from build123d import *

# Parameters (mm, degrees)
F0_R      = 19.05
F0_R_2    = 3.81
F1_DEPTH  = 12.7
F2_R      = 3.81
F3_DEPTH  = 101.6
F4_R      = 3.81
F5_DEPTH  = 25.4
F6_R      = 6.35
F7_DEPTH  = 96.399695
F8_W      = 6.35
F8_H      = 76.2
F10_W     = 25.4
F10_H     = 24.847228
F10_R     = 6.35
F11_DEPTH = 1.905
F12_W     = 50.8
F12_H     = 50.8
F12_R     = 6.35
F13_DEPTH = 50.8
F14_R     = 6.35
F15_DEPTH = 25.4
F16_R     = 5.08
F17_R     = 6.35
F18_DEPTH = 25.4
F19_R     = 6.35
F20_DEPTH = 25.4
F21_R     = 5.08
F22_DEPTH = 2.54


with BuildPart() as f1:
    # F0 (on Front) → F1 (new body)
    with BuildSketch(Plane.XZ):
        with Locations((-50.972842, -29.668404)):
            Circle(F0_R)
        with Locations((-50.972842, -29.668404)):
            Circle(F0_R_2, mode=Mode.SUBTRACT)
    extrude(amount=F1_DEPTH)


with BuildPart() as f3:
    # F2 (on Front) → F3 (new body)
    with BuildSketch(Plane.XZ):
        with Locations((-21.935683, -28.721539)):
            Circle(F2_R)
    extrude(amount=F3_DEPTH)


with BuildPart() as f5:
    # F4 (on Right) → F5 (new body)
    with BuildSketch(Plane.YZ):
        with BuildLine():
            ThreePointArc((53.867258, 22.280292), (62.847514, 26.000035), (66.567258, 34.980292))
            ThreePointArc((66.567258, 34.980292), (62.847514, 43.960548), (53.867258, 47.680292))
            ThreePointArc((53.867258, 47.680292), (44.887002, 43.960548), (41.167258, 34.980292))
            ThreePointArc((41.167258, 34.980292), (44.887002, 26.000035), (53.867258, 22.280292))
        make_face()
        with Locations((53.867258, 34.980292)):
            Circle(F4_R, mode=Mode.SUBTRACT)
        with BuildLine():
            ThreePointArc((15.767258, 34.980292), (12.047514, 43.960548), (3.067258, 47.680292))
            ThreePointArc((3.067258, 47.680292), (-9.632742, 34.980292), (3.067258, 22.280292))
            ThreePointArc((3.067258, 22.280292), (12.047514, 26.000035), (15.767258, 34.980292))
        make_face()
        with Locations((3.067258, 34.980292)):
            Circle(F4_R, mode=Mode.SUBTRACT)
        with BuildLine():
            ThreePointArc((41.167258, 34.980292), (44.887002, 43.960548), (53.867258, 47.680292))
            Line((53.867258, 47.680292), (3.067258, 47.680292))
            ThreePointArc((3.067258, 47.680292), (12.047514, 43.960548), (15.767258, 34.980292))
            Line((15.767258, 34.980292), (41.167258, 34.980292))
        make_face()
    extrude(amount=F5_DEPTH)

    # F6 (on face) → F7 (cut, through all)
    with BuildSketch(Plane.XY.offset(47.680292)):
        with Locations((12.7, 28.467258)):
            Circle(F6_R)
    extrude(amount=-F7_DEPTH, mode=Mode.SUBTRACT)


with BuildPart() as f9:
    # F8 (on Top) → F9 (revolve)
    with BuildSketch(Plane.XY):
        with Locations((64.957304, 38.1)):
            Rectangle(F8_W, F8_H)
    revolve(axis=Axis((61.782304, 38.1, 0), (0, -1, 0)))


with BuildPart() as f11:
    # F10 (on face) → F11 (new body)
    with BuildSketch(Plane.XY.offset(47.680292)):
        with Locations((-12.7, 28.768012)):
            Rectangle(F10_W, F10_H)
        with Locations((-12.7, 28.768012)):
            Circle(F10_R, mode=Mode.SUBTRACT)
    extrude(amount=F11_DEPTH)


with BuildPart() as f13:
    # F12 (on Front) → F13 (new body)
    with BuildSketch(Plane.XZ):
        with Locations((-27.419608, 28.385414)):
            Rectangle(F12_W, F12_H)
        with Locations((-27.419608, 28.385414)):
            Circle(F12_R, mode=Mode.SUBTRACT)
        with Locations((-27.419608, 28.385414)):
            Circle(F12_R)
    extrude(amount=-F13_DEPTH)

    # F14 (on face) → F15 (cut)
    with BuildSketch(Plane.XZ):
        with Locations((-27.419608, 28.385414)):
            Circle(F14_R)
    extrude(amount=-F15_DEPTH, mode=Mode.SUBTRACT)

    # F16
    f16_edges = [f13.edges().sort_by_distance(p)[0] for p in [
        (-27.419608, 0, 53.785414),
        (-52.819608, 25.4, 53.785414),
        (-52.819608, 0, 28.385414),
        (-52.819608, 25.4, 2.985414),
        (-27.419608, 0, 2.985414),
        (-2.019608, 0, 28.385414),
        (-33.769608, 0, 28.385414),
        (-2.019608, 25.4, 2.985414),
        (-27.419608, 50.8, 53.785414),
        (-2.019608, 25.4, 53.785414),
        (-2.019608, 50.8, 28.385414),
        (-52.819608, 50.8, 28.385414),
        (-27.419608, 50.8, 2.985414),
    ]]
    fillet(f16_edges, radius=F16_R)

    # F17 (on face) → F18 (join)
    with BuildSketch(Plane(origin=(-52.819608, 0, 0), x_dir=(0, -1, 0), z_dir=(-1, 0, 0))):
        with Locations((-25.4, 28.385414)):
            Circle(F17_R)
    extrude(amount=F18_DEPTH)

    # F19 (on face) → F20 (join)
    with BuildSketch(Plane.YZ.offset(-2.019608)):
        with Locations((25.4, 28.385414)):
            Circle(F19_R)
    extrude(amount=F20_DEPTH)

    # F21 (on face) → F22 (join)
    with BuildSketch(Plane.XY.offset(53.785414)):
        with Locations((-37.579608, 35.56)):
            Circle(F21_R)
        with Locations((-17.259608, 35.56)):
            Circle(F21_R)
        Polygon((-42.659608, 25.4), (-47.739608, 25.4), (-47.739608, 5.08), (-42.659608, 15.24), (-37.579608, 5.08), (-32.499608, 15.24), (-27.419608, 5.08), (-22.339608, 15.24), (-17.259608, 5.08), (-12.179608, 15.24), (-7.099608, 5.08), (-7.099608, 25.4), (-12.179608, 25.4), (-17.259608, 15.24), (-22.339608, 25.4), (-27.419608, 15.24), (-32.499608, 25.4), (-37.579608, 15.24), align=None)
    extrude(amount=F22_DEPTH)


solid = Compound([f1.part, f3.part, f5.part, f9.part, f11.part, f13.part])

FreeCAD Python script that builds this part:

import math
import FreeCAD as App
import Part
import Sketcher

V = App.Vector
Q = App.Units.Quantity


def edges_at(feature, points):
    """Names of the edges that pass closest to the given points."""
    edges = feature.Shape.Edges
    near = lambda p: min(range(len(edges)), key=lambda i: edges[i].distToShape(Part.Vertex(*p))[0])
    return sorted({f"Edge{near(p) + 1}" for p in points})


def add_polygon(sketch, points):
    """Adds a closed chain of lines whose ends are joined by coincident constraints."""
    first, n = sketch.GeometryCount, len(points)
    for a, b in zip(points, points[1:] + points[:1]):
        sketch.addGeometry(Part.LineSegment(App.Vector(*a, 0), App.Vector(*b, 0)), False)
    for i in range(n):
        sketch.addConstraint(Sketcher.Constraint("Coincident", first + i, 2, first + (i + 1) % n, 1))

doc = App.newDocument("Part")
body = doc.addObject("PartDesign::Body", "Body")

# Sketch on XZ plane
sketch1 = body.newObject("Sketcher::SketchObject", "Sketch")
sketch1.AttachmentSupport = (doc.getObject("XZ_Plane"), [""])
sketch1.MapMode = "FlatFace"
sketch1.addGeometry([
    Part.Circle(V(-51, -29.7, 0), V(0, 0, 1), 19.1),
    Part.Circle(V(-51, -29.7, 0), V(0, 0, 1), 3.8),
], False)
sketch1.addConstraint([
    Sketcher.Constraint("Coincident", 1, 3, 0, 3),
    Sketcher.Constraint("Diameter", 0, Q("1.5 in")),
    Sketcher.Constraint("Diameter", 1, Q("0.3 in")),
    Sketcher.Constraint("DistanceX", 0, 3, -1, 1, Q("50.972842 mm")),
    Sketcher.Constraint("DistanceY", 0, 3, -1, 1, Q("29.668404 mm")),
])
pad1 = body.newObject("PartDesign::Pad", "Pad")
pad1.Profile = sketch1
pad1.Length = Q("0.5 in")
body2 = doc.addObject("PartDesign::Body", "Body001")

# Sketch on XZ plane
sketch2 = body2.newObject("Sketcher::SketchObject", "Sketch001")
sketch2.AttachmentSupport = (doc.getObject("XZ_Plane001"), [""])
sketch2.MapMode = "FlatFace"
sketch2.addGeometry(Part.Circle(V(-21.9, -28.7, 0), V(0, 0, 1), 3.8), False)
sketch2.addConstraint([
    Sketcher.Constraint("Diameter", 0, Q("0.3 in")),
    Sketcher.Constraint("DistanceY", 0, 3, -1, 1, Q("28.721539 mm")),
    Sketcher.Constraint("DistanceX", 0, 3, -1, 1, Q("21.935683 mm")),
])
pad2 = body2.newObject("PartDesign::Pad", "Pad001")
pad2.Profile = sketch2
pad2.Length = Q("4 in")
body3 = doc.addObject("PartDesign::Body", "Body002")

# Sketch on YZ plane
sketch3 = body3.newObject("Sketcher::SketchObject", "Sketch002")
sketch3.AttachmentSupport = (doc.getObject("YZ_Plane002"), [""])
sketch3.MapMode = "FlatFace"
sketch3.addGeometry([
    Part.ArcOfCircle(Part.Circle(V(53.9, 35, 0), V(0, 0, 1), 12.7), math.radians(-90), math.radians(0)),  # 0
    Part.ArcOfCircle(Part.Circle(V(53.9, 35, 0), V(0, 0, 1), 12.7), math.radians(0), math.radians(90)),  # 1
    Part.LineSegment(V(53.9, 47.7, 0), V(3.1, 47.7, 0)),  # 2
    Part.ArcOfCircle(Part.Circle(V(3.1, 35, 0), V(0, 0, 1), 12.7), math.radians(90), math.radians(270)),  # 3
    Part.ArcOfCircle(Part.Circle(V(3.1, 35, 0), V(0, 0, 1), 12.7), math.radians(-90), math.radians(0)),  # 4
    Part.LineSegment(V(15.8, 35, 0), V(41.2, 35, 0)),  # 5
    Part.ArcOfCircle(Part.Circle(V(53.9, 35, 0), V(0, 0, 1), 12.7), math.radians(180), math.radians(270)),  # 6
    Part.Circle(V(53.9, 35, 0), V(0, 0, 1), 3.8),  # 7
    Part.Circle(V(3.1, 35, 0), V(0, 0, 1), 3.8),  # 8
], False)
sketch3.addConstraint([
    Sketcher.Constraint("Tangent", 0, 2, 1, 1),
    Sketcher.Constraint("Tangent", 1, 2, 2, 1),
    Sketcher.Constraint("Tangent", 2, 2, 3, 1),
    Sketcher.Constraint("Tangent", 3, 2, 4, 1),
    Sketcher.Constraint("Coincident", 4, 2, 5, 1),
    Sketcher.Constraint("Coincident", 5, 2, 6, 1),
    Sketcher.Constraint("Tangent", 6, 2, 0, 1),
    Sketcher.Constraint("Horizontal", 2),
    Sketcher.Constraint("Horizontal", 5),
    Sketcher.Constraint("Coincident", 7, 3, 0, 3),
    Sketcher.Constraint("Coincident", 8, 3, 3, 3),
    Sketcher.Constraint("Equal", 0, 1),
    Sketcher.Constraint("Equal", 1, 3),
    Sketcher.Constraint("Equal", 3, 4),
    Sketcher.Constraint("Equal", 4, 6),
    Sketcher.Constraint("Equal", 7, 8),
    Sketcher.Constraint("Horizontal", 8, 3, 0, 2),
    Sketcher.Constraint("Horizontal", 0, 2, 4, 2),
    Sketcher.Constraint("Vertical", 2, 2, 3, 2),
    Sketcher.Constraint("Vertical", 1, 2, 6, 2),
    Sketcher.Constraint("Diameter", 7, Q("0.3 in")),
    Sketcher.Constraint("Radius", 0, Q("0.4999999 in")),
    Sketcher.Constraint("DistanceX", 2, 2, 2, 1, Q("2 in")),
    Sketcher.Constraint("DistanceX", -1, 1, 0, 3, Q("53.867259 mm")),
    Sketcher.Constraint("DistanceY", -1, 1, 0, 3, Q("34.980291 mm")),
])
pad3 = body3.newObject("PartDesign::Pad", "Pad002")
pad3.Profile = sketch3
pad3.Length = Q("1 in")

# Sketch on XY plane
sketch4 = body3.newObject("Sketcher::SketchObject", "Sketch003")
sketch4.AttachmentSupport = (doc.getObject("XY_Plane002"), [""])
sketch4.MapMode = "FlatFace"
sketch4.AttachmentOffset = App.Placement(V(0, 0, 47.680292), App.Rotation())
sketch4.addGeometry(Part.Circle(V(13, 28, 0), V(0, 0, 1), 6), False)
sketch4.addConstraint([
    Sketcher.Constraint("Diameter", 0, Q("0.5 in")),
    Sketcher.Constraint("DistanceX", -1, 1, 0, 3, Q("0.5 in")),
    Sketcher.Constraint("DistanceY", -1, 1, 0, 3, Q("28.467258 mm")),
])
pocket1 = body3.newObject("PartDesign::Pocket", "Pocket")
pocket1.Profile = sketch4
pocket1.Type = "ThroughAll"
body4 = doc.addObject("PartDesign::Body", "Body003")

# Sketch on XY plane
sketch5 = body4.newObject("Sketcher::SketchObject", "Sketch004")
sketch5.AttachmentSupport = (doc.getObject("XY_Plane003"), [""])
sketch5.MapMode = "FlatFace"
add_polygon(sketch5, [(62, 76), (62, 0), (68, 0), (68, 76)])  # lines 0-3
sketch5.addGeometry(Part.LineSegment(V(62, 76, 0), V(62, 0, 0)), True)  # axis
sketch5.addConstraint([
    Sketcher.Constraint("Vertical", 0),
    Sketcher.Constraint("Horizontal", 1),
    Sketcher.Constraint("Vertical", 2),
    Sketcher.Constraint("Horizontal", 3),
    Sketcher.Constraint("Vertical", 4),
    Sketcher.Constraint("Coincident", 4, 1, 3, 2),
    Sketcher.Constraint("PointOnObject", 0, 2, -1),
    Sketcher.Constraint("PointOnObject", 4, 2, -1),
    Sketcher.Constraint("DistanceY", 0, 2, 0, 1, Q("3 in")),
    Sketcher.Constraint("DistanceX", 1, 1, 1, 2, Q("0.25 in")),
    Sketcher.Constraint("DistanceX", -1, 1, 0, 2, Q("61.782304 mm")),
])
revolution = body4.newObject("PartDesign::Revolution", "Revolution")
revolution.Profile = sketch5
revolution.ReferenceAxis = (sketch5, ["Axis0"])
revolution.Angle = 360
body5 = doc.addObject("PartDesign::Body", "Body004")

# Sketch on XY plane
sketch6 = body5.newObject("Sketcher::SketchObject", "Sketch005")
sketch6.AttachmentSupport = (doc.getObject("XY_Plane004"), [""])
sketch6.MapMode = "FlatFace"
sketch6.AttachmentOffset = App.Placement(V(0, 0, 47.680292), App.Rotation())
add_polygon(sketch6, [(-25, 41), (-25, 16), (0, 16), (0, 41)])  # lines 0-3
sketch6.addGeometry(Part.Circle(V(-13, 29, 0), V(0, 0, 1), 6), False)  # 4
sketch6.addConstraint([
    Sketcher.Constraint("Vertical", 0),
    Sketcher.Constraint("Horizontal", 1),
    Sketcher.Constraint("Vertical", 2),
    Sketcher.Constraint("Horizontal", 3),
    Sketcher.Constraint("PointOnObject", 1, 2, -2),
    Sketcher.Constraint("Diameter", 4, Q("0.5 in")),
    Sketcher.Constraint("DistanceX", 1, 1, 1, 2, Q("1 in")),
    Sketcher.Constraint("DistanceX", 4, 3, -1, 1, Q("0.5 in")),
    Sketcher.Constraint("DistanceY", -1, 1, 0, 2, Q("16.344398 mm")),
    Sketcher.Constraint("DistanceY", 0, 2, 0, 1, Q("24.847228 mm")),
    Sketcher.Constraint("DistanceY", -1, 1, 4, 3, Q("28.768012 mm")),
])
pad4 = body5.newObject("PartDesign::Pad", "Pad003")
pad4.Profile = sketch6
pad4.Length = Q("0.075 in")
body6 = doc.addObject("PartDesign::Body", "Body005")

# Sketch on XZ plane
sketch7 = body6.newObject("Sketcher::SketchObject", "Sketch006")
sketch7.AttachmentSupport = (doc.getObject("XZ_Plane005"), [""])
sketch7.MapMode = "FlatFace"
add_polygon(sketch7, [(-53, 54), (-53, 3), (-2, 3), (-2, 54)])  # lines 0-3
sketch7.addConstraint([
    Sketcher.Constraint("Vertical", 0),
    Sketcher.Constraint("Horizontal", 1),
    Sketcher.Constraint("Vertical", 2),
    Sketcher.Constraint("Horizontal", 3),
    Sketcher.Constraint("Equal", 3, 0),
    Sketcher.Constraint("DistanceX", 1, 1, 1, 2, Q("2 in")),
    Sketcher.Constraint("DistanceX", 0, 2, -1, 1, Q("52.819608 mm")),
    Sketcher.Constraint("DistanceY", -1, 1, 0, 2, Q("2.985414 mm")),
])
pad5 = body6.newObject("PartDesign::Pad", "Pad004")
pad5.Profile = sketch7
pad5.Length = Q("2 in")
pad5.Reversed = True

# Sketch on XZ plane
sketch8 = body6.newObject("Sketcher::SketchObject", "Sketch007")
sketch8.AttachmentSupport = (doc.getObject("XZ_Plane005"), [""])
sketch8.MapMode = "FlatFace"
sketch8.addGeometry(Part.Circle(V(-27, 28, 0), V(0, 0, 1), 6), False)
sketch8.addConstraint([
    Sketcher.Constraint("Diameter", 0, Q("0.5 in")),
    Sketcher.Constraint("DistanceX", 0, 3, -1, 1, Q("27.419608 mm")),
    Sketcher.Constraint("DistanceY", -1, 1, 0, 3, Q("28.385414 mm")),
])
pocket2 = body6.newObject("PartDesign::Pocket", "Pocket001")
pocket2.Profile = sketch8
pocket2.Length = Q("1 in")
doc.recompute()

fillet = body6.newObject("PartDesign::Fillet", "Fillet")
fillet.Base = (pocket2, edges_at(pocket2, [
    (-27.42, 0, 53.785),
    (-52.82, 25.4, 53.785),
    (-52.82, 0, 28.385),
    (-52.82, 25.4, 2.985),
    (-27.42, 0, 2.985),
    (-2.02, 0, 28.385),
    (-33.77, 0, 28.385),
    (-2.02, 25.4, 2.985),
    (-27.42, 50.8, 53.785),
    (-2.02, 25.4, 53.785),
    (-2.02, 50.8, 28.385),
    (-52.82, 50.8, 28.385),
    (-27.42, 50.8, 2.985),
]))
fillet.Radius = Q("0.2 in")

# Sketch on YZ plane
sketch9 = body6.newObject("Sketcher::SketchObject", "Sketch008")
sketch9.AttachmentSupport = (doc.getObject("YZ_Plane005"), [""])
sketch9.MapMode = "FlatFace"
sketch9.AttachmentOffset = App.Placement(V(0, 0, -52.819608), App.Rotation())
sketch9.addGeometry(Part.Circle(V(25, 28, 0), V(0, 0, 1), 6), False)
sketch9.addConstraint([
    Sketcher.Constraint("Diameter", 0, Q("0.5 in")),
    Sketcher.Constraint("DistanceX", -1, 1, 0, 3, Q("1 in")),
    Sketcher.Constraint("DistanceY", -1, 1, 0, 3, Q("28.385414 mm")),
])
pad6 = body6.newObject("PartDesign::Pad", "Pad005")
pad6.Profile = sketch9
pad6.Length = Q("1 in")
pad6.Reversed = True

# Sketch on YZ plane
sketch10 = body6.newObject("Sketcher::SketchObject", "Sketch009")
sketch10.AttachmentSupport = (doc.getObject("YZ_Plane005"), [""])
sketch10.MapMode = "FlatFace"
sketch10.AttachmentOffset = App.Placement(V(0, 0, -2.019608), App.Rotation())
sketch10.addGeometry(Part.Circle(V(25, 28, 0), V(0, 0, 1), 6), False)
sketch10.addConstraint([
    Sketcher.Constraint("Diameter", 0, Q("0.5 in")),
    Sketcher.Constraint("DistanceX", -1, 1, 0, 3, Q("1 in")),
    Sketcher.Constraint("DistanceY", -1, 1, 0, 3, Q("28.385414 mm")),
])
pad7 = body6.newObject("PartDesign::Pad", "Pad006")
pad7.Profile = sketch10
pad7.Length = Q("1 in")

# Sketch on XY plane
sketch11 = body6.newObject("Sketcher::SketchObject", "Sketch010")
sketch11.AttachmentSupport = (doc.getObject("XY_Plane005"), [""])
sketch11.MapMode = "FlatFace"
sketch11.AttachmentOffset = App.Placement(V(0, 0, 53.785414), App.Rotation())
sketch11.addGeometry(Part.Circle(V(-38, 36, 0), V(0, 0, 1), 5), False)  # 0
sketch11.addGeometry(Part.Circle(V(-17, 36, 0), V(0, 0, 1), 5), False)  # 1
add_polygon(sketch11, [(-43, 25), (-48, 25), (-48, 5), (-43, 15), (-38, 5), (-32, 15), (-27, 5), (-22, 15), (-17, 5), (-12, 15), (-7, 5), (-7, 25), (-12, 25), (-17, 15), (-22, 25), (-27, 15), (-32, 25), (-38, 15)])  # lines 2-19
sketch11.addConstraint([
    Sketcher.Constraint("Horizontal", 2),
    Sketcher.Constraint("Vertical", 3),
    Sketcher.Constraint("Vertical", 12),
    Sketcher.Constraint("Horizontal", 13),
    Sketcher.Constraint("Equal", 0, 1),
    Sketcher.Constraint("Parallel", 4, 6),
    Sketcher.Constraint("Parallel", 5, 7),
    Sketcher.Constraint("Parallel", 6, 8),
    Sketcher.Constraint("Parallel", 7, 9),
    Sketcher.Constraint("Parallel", 8, 10),
    Sketcher.Constraint("Parallel", 9, 11),
    Sketcher.Constraint("Parallel", 10, 14),
    Sketcher.Constraint("Parallel", 11, 15),
    Sketcher.Constraint("Parallel", 14, 16),
    Sketcher.Constraint("Parallel", 15, 17),
    Sketcher.Constraint("Parallel", 16, 18),
    Sketcher.Constraint("Parallel", 17, 19),
    Sketcher.Constraint("Horizontal", 0, 3, 1, 3),
    Sketcher.Constraint("Horizontal", 3, 2, 5, 2),
    Sketcher.Constraint("Horizontal", 4, 2, 6, 2),
    Sketcher.Constraint("Horizontal", 5, 2, 7, 2),
    Sketcher.Constraint("Horizontal", 6, 2, 8, 2),
    Sketcher.Constraint("Horizontal", 7, 2, 9, 2),
    Sketcher.Constraint("Horizontal", 8, 2, 10, 2),
    Sketcher.Constraint("Horizontal", 9, 2, 11, 2),
    Sketcher.Constraint("Horizontal", 2, 2, 12, 2),
    Sketcher.Constraint("Horizontal", 10, 2, 14, 2),
    Sketcher.Constraint("Horizontal", 13, 2, 15, 2),
    Sketcher.Constraint("Horizontal", 14, 2, 16, 2),
    Sketcher.Constraint("Horizontal", 15, 2, 17, 2),
    Sketcher.Constraint("Horizontal", 16, 2, 18, 2),
    Sketcher.Constraint("Vertical", 0, 3, 5, 2),
    Sketcher.Constraint("Vertical", 1, 3, 9, 2),
    Sketcher.Constraint("Vertical", 10, 2, 13, 2),
    Sketcher.Constraint("Vertical", 9, 2, 14, 2),
    Sketcher.Constraint("Equal", 2, 13),
    Sketcher.Constraint("Diameter", 0, Q("0.4 in")),
    Sketcher.Constraint("DistanceX", 2, 2, 2, 1, Q("0.2 in")),
    Sketcher.Constraint("DistanceY", 3, 2, 3, 1, Q("0.8 in")),
    Sketcher.Constraint("DistanceY", -1, 1, 2, 2, Q("1 in")),
    Sketcher.Constraint("DistanceY", -1, 1, 0, 3, Q("1.4 in")),
    Sketcher.Constraint("DistanceX", 1, 3, -1, 1, Q("17.259608 mm")),
])
pad8 = body6.newObject("PartDesign::Pad", "Pad007")
pad8.Profile = sketch11
pad8.Length = Q("0.1 in")

doc.recompute()
